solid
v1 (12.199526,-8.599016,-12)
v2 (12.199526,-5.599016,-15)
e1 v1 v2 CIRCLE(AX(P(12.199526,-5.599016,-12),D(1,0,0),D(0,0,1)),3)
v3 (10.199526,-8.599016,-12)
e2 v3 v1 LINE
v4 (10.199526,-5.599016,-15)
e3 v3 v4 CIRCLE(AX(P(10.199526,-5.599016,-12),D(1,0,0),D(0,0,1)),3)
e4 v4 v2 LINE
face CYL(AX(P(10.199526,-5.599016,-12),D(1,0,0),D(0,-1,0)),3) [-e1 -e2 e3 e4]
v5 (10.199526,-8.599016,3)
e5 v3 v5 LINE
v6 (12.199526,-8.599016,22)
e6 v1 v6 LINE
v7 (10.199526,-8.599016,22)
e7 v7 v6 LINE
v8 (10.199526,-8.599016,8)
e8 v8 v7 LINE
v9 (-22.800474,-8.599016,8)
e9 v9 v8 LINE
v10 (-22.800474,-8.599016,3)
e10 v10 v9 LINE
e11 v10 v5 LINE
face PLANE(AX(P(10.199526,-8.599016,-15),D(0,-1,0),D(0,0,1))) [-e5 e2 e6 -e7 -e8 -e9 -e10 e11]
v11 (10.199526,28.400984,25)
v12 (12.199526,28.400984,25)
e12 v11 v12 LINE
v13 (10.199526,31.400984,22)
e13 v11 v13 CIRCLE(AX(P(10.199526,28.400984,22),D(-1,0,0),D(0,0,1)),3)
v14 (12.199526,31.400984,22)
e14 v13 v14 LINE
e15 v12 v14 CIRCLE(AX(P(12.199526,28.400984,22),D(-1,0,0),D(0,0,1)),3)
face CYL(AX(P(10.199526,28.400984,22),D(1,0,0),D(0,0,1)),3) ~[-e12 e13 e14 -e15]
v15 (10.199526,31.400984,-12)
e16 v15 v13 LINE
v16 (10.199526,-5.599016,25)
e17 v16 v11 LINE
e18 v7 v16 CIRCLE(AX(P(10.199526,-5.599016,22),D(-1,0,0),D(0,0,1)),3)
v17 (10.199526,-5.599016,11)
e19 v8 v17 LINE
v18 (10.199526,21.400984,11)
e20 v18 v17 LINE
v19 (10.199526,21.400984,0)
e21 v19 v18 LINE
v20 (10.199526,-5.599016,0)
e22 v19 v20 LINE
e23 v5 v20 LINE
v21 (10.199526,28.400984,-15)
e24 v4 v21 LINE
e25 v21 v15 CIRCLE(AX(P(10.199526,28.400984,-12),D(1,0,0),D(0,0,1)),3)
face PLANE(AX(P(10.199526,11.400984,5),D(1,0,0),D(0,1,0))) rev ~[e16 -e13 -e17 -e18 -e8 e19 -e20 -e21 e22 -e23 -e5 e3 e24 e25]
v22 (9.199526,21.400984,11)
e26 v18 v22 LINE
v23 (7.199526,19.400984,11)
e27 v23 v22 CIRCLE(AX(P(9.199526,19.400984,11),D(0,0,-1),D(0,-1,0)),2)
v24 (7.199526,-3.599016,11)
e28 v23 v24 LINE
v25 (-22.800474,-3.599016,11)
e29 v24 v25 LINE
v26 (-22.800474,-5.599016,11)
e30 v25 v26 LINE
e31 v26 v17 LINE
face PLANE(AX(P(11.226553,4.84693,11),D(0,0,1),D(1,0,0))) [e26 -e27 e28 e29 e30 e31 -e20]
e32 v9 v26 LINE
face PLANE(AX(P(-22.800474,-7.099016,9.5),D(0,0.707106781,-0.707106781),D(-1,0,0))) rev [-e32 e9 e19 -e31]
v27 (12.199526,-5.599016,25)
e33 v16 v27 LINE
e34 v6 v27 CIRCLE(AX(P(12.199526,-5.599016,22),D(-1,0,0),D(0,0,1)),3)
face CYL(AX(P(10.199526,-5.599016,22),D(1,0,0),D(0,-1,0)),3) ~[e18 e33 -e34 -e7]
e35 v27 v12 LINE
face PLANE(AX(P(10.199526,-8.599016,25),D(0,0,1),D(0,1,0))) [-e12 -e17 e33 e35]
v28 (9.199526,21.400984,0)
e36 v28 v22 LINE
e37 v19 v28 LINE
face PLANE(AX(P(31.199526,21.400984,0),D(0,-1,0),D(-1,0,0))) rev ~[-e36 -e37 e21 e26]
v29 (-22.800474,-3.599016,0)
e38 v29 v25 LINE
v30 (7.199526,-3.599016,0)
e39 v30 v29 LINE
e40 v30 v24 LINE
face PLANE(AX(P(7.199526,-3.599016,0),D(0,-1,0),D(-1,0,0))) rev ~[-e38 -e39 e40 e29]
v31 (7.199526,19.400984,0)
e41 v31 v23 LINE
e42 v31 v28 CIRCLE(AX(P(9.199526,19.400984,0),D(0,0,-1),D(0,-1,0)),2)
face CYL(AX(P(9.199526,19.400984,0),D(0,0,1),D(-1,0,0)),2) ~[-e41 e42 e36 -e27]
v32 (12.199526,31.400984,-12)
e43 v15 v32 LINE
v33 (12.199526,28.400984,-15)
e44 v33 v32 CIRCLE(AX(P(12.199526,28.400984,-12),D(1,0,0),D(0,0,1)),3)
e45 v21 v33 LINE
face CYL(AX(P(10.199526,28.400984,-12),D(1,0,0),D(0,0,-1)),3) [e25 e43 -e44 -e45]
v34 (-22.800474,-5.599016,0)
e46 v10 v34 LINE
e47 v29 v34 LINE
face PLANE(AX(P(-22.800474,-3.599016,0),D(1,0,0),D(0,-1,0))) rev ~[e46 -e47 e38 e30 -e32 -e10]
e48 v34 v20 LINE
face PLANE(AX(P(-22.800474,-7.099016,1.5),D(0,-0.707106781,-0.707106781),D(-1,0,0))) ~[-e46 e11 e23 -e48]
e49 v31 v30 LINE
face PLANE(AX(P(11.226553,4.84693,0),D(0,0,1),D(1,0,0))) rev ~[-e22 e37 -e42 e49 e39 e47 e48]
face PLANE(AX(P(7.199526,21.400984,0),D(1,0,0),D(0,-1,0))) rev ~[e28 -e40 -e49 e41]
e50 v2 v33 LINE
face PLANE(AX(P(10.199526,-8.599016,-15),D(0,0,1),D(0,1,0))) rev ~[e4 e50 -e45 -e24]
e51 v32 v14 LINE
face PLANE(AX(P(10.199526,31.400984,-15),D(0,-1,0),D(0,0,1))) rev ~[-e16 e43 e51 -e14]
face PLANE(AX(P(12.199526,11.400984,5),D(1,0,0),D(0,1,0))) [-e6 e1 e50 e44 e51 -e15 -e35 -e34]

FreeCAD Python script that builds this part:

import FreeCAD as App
import Part
import Sketcher
from FreeCAD import Vector
Q = App.Units.Quantity


def edges_at(feature, points):
    """Names of the edges that pass closest to the given points."""
    edges = feature.Shape.Edges
    near = lambda p: min(range(len(edges)), key=lambda i: edges[i].distToShape(Part.Vertex(*p))[0])
    return sorted({f"Edge{near(p) + 1}" for p in points})

doc = App.newDocument("Part")
body = doc.addObject("PartDesign::Body", "Body")

sketch1 = body.newObject("Sketcher::SketchObject", "Sketch")
sketch1.AttachmentSupport = (doc.getObject("XY_Plane"), [""])
sketch1.MapMode = "FlatFace"
sketch1.addGeometry([
    Part.LineSegment(Vector(-22.800474, -3.599016, 0), Vector(-22.800474, -8.599016, 0)),
    Part.LineSegment(Vector(-22.800474, -8.599016, 0), Vector(10.199526, -8.599016, 0)),
    Part.LineSegment(Vector(10.199526, -8.599016, 0), Vector(10.199526, 18.400984, 0)),
    Part.LineSegment(Vector(10.199526, 18.400984, 0), Vector(28.199526, 18.400984, 0)),
    Part.LineSegment(Vector(28.199526, 18.400984, 0), Vector(28.199526, -8.599016, 0)),
    Part.LineSegment(Vector(28.199526, -8.599016, 0), Vector(31.199526, -8.599016, 0)),
    Part.LineSegment(Vector(31.199526, -8.599016, 0), Vector(31.199526, 21.400984, 0)),
    Part.LineSegment(Vector(31.199526, 21.400984, 0), Vector(7.199526, 21.400984, 0)),
    Part.LineSegment(Vector(7.199526, 21.400984, 0), Vector(7.199526, -3.599016, 0)),
    Part.LineSegment(Vector(7.199526, -3.599016, 0), Vector(-22.800474, -3.599016, 0)),
], False)
sketch1.addConstraint([
    Sketcher.Constraint("Coincident", 0, 2, 1, 1),
    Sketcher.Constraint("Coincident", 1, 2, 2, 1),
    Sketcher.Constraint("Coincident", 2, 2, 3, 1),
    Sketcher.Constraint("Coincident", 3, 2, 4, 1),
    Sketcher.Constraint("Coincident", 4, 2, 5, 1),
    Sketcher.Constraint("Coincident", 5, 2, 6, 1),
    Sketcher.Constraint("Coincident", 6, 2, 7, 1),
    Sketcher.Constraint("Coincident", 7, 2, 8, 1),
    Sketcher.Constraint("Coincident", 8, 2, 9, 1),
    Sketcher.Constraint("Coincident", 9, 2, 0, 1),
    Sketcher.Constraint("Vertical", 0),
    Sketcher.Constraint("Horizontal", 1),
    Sketcher.Constraint("Vertical", 2),
    Sketcher.Constraint("Horizontal", 3),
    Sketcher.Constraint("Vertical", 4),
    Sketcher.Constraint("Horizontal", 5),
    Sketcher.Constraint("Vertical", 6),
    Sketcher.Constraint("Horizontal", 7),
    Sketcher.Constraint("Vertical", 8),
    Sketcher.Constraint("Horizontal", 9),
    Sketcher.Constraint("Horizontal", 1, 2, 4, 2),
    Sketcher.Constraint("Equal", 9, 6),
    Sketcher.Constraint("DistanceX", 1, 1, 1, 2, Q("33 mm")),
    Sketcher.Constraint("DistanceX", 3, 1, 3, 2, Q("18 mm")),
    Sketcher.Constraint("DistanceX", 5, 1, 5, 2, Q("3 mm")),
    Sketcher.Constraint("DistanceX", 7, 2, 7, 1, Q("24 mm")),
    Sketcher.Constraint("DistanceY", 0, 2, 0, 1, Q("5 mm")),
    Sketcher.Constraint("DistanceY", 2, 1, 2, 2, Q("27 mm")),
    Sketcher.Constraint("DistanceX", 0, 2, -1, 1, Q("22.800474 mm")),
    Sketcher.Constraint("DistanceY", 0, 2, -1, 1, Q("8.599016 mm")),
])
pad1 = body.newObject("PartDesign::Pad", "Pad")
pad1.Profile = sketch1
pad1.Length = 11
doc.recompute()

chamfer = body.newObject("PartDesign::Chamfer", "Chamfer")
chamfer.Base = (pad1, edges_at(pad1, [(-6.3, -8.599, 0), (-6.3, -8.599, 11)]))
chamfer.Size = 3
doc.recompute()

fillet = body.newObject("PartDesign::Fillet", "Fillet")
fillet.Base = (chamfer, edges_at(chamfer, [(31.2, 21.401, 5.5), (7.2, 21.401, 5.5)]))
fillet.Radius = 2

sketch2 = body.newObject("Sketcher::SketchObject", "Sketch001")
sketch2.AttachmentSupport = (doc.getObject("XY_Plane"), [""])
sketch2.MapMode = "FlatFace"
sketch2.AttachmentOffset = App.Placement(Vector(0, 0, 11), App.Rotation())
sketch2.addGeometry([
    Part.LineSegment(Vector(10.199526, 33.401215, 0), Vector(10.199526, -22.604015, 0)),
    Part.LineSegment(Vector(10.199526, -22.604015, 0), Vector(50.00185, -22.604015, 0)),
    Part.LineSegment(Vector(50.00185, -22.604015, 0), Vector(50.00185, 33.401215, 0)),
    Part.LineSegment(Vector(50.00185, 33.401215, 0), Vector(10.199526, 33.401215, 0)),
], False)
sketch2.addConstraint([
    Sketcher.Constraint("Coincident", 0, 2, 1, 1),
    Sketcher.Constraint("Coincident", 1, 2, 2, 1),
    Sketcher.Constraint("Coincident", 2, 2, 3, 1),
    Sketcher.Constraint("Coincident", 3, 2, 0, 1),
    Sketcher.Constraint("Vertical", 0),
    Sketcher.Constraint("Horizontal", 1),
    Sketcher.Constraint("Vertical", 2),
    Sketcher.Constraint("Horizontal", 3),
    Sketcher.Constraint("DistanceY", 0, 2, 0, 1, Q("56.00523 mm")),
    Sketcher.Constraint("DistanceX", 1, 1, 1, 2, Q("39.802324 mm")),
    Sketcher.Constraint("DistanceX", -1, 1, 1, 2, Q("50.00185 mm")),
    Sketcher.Constraint("DistanceY", 0, 2, -1, 1, Q("22.604015 mm")),
])
pocket1 = body.newObject("PartDesign::Pocket", "Pocket")
pocket1.Profile = sketch2
pocket1.Length = 50

sketch3 = body.newObject("Sketcher::SketchObject", "Sketch002")
sketch3.AttachmentSupport = (doc.getObject("YZ_Plane"), [""])
sketch3.MapMode = "FlatFace"
sketch3.AttachmentOffset = App.Placement(Vector(0, 0, 10.199526), App.Rotation())
sketch3.addGeometry([
    Part.LineSegment(Vector(-8.599016, 25, 0), Vector(-8.599016, -15, 0)),
    Part.LineSegment(Vector(-8.599016, -15, 0), Vector(31.400984, -15, 0)),
    Part.LineSegment(Vector(31.400984, -15, 0), Vector(31.400984, 25, 0)),
    Part.LineSegment(Vector(31.400984, 25, 0), Vector(-8.599016, 25, 0)),
], False)
sketch3.addConstraint([
    Sketcher.Constraint("Coincident", 0, 2, 1, 1),
    Sketcher.Constraint("Coincident", 1, 2, 2, 1),
    Sketcher.Constraint("Coincident", 2, 2, 3, 1),
    Sketcher.Constraint("Coincident", 3, 2, 0, 1),
    Sketcher.Constraint("Vertical", 0),
    Sketcher.Constraint("Horizontal", 1),
    Sketcher.Constraint("Vertical", 2),
    Sketcher.Constraint("Horizontal", 3),
    Sketcher.Constraint("Equal", 3, 0),
    Sketcher.Constraint("DistanceX", 1, 1, 1, 2, Q("40 mm")),
    Sketcher.Constraint("DistanceY", 0, 2, -1, 1, Q("15 mm")),
    Sketcher.Constraint("DistanceX", 0, 2, -1, 1, Q("8.599016 mm")),
])
pad2 = body.newObject("PartDesign::Pad", "Pad001")
pad2.Profile = sketch3
pad2.Length = 2
doc.recompute()

fillet2 = body.newObject("PartDesign::Fillet", "Fillet001")
fillet2.Base = (pad2, edges_at(pad2, [
    (11.2, 31.401, 25),
    (11.2, 31.401, -15),
    (11.2, -8.599, -15),
    (11.2, -8.599, 25),
]))
fillet2.Radius = 3

doc.recompute()
